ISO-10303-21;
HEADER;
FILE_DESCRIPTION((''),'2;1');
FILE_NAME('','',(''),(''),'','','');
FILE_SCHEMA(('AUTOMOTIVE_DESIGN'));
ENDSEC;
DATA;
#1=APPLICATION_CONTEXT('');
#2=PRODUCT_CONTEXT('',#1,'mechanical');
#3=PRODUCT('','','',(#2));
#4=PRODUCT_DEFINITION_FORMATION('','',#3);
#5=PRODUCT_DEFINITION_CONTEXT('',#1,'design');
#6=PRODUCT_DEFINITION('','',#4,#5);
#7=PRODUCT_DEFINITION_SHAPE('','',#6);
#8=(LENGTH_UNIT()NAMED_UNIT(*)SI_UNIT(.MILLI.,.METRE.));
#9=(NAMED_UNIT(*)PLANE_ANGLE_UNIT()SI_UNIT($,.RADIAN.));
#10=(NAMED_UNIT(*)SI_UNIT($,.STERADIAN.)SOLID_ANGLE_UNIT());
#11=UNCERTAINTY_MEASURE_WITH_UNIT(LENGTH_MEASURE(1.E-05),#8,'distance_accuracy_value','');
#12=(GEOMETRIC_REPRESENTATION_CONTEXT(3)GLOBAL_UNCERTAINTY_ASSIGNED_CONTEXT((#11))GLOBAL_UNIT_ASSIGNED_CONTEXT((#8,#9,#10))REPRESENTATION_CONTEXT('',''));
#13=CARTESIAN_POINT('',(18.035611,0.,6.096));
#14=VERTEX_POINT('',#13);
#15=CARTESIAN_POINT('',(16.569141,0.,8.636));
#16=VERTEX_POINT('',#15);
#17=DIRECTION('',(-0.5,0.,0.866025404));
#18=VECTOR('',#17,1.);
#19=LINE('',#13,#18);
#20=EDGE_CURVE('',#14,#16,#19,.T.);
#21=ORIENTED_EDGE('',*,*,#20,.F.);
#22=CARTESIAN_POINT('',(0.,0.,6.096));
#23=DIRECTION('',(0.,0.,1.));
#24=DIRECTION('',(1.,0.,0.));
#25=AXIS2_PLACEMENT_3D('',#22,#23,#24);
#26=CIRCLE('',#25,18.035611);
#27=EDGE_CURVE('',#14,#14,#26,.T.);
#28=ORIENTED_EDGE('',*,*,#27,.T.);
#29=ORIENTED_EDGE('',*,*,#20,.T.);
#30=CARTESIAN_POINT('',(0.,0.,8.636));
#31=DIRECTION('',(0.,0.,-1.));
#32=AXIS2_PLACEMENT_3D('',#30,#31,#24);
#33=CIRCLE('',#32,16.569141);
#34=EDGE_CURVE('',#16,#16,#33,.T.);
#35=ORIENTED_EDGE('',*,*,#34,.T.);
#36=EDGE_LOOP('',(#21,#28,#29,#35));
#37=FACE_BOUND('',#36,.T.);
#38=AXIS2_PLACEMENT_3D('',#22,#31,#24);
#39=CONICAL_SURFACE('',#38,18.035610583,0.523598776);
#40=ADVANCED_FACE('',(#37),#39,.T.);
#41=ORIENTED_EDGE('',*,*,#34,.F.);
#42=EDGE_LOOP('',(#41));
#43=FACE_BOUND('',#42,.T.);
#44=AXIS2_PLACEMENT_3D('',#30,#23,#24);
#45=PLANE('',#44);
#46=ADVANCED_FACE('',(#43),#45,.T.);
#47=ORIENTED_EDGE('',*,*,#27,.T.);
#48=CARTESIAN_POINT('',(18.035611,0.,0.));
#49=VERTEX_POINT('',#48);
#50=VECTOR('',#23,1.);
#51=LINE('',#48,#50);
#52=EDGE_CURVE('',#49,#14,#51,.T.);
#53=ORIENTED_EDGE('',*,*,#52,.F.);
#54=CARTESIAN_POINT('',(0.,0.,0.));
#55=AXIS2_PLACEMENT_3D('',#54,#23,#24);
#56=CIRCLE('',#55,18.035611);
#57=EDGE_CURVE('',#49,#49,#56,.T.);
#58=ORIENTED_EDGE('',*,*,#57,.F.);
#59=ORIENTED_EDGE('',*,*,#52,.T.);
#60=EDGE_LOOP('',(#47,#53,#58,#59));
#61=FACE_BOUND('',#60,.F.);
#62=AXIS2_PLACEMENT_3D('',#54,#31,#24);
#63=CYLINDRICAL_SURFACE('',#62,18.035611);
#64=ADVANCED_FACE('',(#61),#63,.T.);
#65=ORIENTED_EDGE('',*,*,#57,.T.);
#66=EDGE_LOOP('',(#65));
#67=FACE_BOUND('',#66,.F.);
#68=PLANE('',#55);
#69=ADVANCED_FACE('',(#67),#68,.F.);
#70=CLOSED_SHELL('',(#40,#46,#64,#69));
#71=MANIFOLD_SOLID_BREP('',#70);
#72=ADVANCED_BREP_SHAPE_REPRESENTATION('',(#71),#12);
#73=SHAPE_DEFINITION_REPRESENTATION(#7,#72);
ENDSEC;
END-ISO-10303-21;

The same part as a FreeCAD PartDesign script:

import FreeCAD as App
import Part
import Sketcher
from FreeCAD import Vector
Q = App.Units.Quantity

doc = App.newDocument("Part")
body = doc.addObject("PartDesign::Body", "Body")

# Sketch on XY plane
sketch1 = body.newObject("Sketcher::SketchObject", "Sketch")
sketch1.AttachmentSupport = (doc.getObject("XY_Plane"), [""])
sketch1.MapMode = "FlatFace"
sketch1.addGeometry(Part.Circle(Vector(0, 0, 0), Vector(0, 0, 1), 18.035611), False)
sketch1.addConstraint([
    Sketcher.Constraint("Coincident", 0, 3, -1, 1),
    Sketcher.Constraint("Diameter", 0, Q("36.071221 mm")),
])
pad1 = body.newObject("PartDesign::Pad", "Pad")
pad1.Profile = sketch1
pad1.Length = Q("0.24 in")

# Sketch on XY plane
sketch2 = body.newObject("Sketcher::SketchObject", "Sketch001")
sketch2.AttachmentSupport = (doc.getObject("XY_Plane"), [""])
sketch2.MapMode = "FlatFace"
sketch2.AttachmentOffset = App.Placement(Vector(0, 0, 0.24 * 25.4), App.Rotation())
sketch2.addGeometry(Part.Circle(Vector(0, 0, 0), Vector(0, 0, 1), 18.035611), False)
sketch2.addConstraint([
    Sketcher.Constraint("Coincident", 0, 3, -1, 1),
    Sketcher.Constraint("Diameter", 0, Q("36.071221 mm")),
])
pad2 = body.newObject("PartDesign::Pad", "Pad001")
pad2.Profile = sketch2
pad2.Length = Q("0.1 in")
pad2.TaperAngle = -30

doc.recompute()
